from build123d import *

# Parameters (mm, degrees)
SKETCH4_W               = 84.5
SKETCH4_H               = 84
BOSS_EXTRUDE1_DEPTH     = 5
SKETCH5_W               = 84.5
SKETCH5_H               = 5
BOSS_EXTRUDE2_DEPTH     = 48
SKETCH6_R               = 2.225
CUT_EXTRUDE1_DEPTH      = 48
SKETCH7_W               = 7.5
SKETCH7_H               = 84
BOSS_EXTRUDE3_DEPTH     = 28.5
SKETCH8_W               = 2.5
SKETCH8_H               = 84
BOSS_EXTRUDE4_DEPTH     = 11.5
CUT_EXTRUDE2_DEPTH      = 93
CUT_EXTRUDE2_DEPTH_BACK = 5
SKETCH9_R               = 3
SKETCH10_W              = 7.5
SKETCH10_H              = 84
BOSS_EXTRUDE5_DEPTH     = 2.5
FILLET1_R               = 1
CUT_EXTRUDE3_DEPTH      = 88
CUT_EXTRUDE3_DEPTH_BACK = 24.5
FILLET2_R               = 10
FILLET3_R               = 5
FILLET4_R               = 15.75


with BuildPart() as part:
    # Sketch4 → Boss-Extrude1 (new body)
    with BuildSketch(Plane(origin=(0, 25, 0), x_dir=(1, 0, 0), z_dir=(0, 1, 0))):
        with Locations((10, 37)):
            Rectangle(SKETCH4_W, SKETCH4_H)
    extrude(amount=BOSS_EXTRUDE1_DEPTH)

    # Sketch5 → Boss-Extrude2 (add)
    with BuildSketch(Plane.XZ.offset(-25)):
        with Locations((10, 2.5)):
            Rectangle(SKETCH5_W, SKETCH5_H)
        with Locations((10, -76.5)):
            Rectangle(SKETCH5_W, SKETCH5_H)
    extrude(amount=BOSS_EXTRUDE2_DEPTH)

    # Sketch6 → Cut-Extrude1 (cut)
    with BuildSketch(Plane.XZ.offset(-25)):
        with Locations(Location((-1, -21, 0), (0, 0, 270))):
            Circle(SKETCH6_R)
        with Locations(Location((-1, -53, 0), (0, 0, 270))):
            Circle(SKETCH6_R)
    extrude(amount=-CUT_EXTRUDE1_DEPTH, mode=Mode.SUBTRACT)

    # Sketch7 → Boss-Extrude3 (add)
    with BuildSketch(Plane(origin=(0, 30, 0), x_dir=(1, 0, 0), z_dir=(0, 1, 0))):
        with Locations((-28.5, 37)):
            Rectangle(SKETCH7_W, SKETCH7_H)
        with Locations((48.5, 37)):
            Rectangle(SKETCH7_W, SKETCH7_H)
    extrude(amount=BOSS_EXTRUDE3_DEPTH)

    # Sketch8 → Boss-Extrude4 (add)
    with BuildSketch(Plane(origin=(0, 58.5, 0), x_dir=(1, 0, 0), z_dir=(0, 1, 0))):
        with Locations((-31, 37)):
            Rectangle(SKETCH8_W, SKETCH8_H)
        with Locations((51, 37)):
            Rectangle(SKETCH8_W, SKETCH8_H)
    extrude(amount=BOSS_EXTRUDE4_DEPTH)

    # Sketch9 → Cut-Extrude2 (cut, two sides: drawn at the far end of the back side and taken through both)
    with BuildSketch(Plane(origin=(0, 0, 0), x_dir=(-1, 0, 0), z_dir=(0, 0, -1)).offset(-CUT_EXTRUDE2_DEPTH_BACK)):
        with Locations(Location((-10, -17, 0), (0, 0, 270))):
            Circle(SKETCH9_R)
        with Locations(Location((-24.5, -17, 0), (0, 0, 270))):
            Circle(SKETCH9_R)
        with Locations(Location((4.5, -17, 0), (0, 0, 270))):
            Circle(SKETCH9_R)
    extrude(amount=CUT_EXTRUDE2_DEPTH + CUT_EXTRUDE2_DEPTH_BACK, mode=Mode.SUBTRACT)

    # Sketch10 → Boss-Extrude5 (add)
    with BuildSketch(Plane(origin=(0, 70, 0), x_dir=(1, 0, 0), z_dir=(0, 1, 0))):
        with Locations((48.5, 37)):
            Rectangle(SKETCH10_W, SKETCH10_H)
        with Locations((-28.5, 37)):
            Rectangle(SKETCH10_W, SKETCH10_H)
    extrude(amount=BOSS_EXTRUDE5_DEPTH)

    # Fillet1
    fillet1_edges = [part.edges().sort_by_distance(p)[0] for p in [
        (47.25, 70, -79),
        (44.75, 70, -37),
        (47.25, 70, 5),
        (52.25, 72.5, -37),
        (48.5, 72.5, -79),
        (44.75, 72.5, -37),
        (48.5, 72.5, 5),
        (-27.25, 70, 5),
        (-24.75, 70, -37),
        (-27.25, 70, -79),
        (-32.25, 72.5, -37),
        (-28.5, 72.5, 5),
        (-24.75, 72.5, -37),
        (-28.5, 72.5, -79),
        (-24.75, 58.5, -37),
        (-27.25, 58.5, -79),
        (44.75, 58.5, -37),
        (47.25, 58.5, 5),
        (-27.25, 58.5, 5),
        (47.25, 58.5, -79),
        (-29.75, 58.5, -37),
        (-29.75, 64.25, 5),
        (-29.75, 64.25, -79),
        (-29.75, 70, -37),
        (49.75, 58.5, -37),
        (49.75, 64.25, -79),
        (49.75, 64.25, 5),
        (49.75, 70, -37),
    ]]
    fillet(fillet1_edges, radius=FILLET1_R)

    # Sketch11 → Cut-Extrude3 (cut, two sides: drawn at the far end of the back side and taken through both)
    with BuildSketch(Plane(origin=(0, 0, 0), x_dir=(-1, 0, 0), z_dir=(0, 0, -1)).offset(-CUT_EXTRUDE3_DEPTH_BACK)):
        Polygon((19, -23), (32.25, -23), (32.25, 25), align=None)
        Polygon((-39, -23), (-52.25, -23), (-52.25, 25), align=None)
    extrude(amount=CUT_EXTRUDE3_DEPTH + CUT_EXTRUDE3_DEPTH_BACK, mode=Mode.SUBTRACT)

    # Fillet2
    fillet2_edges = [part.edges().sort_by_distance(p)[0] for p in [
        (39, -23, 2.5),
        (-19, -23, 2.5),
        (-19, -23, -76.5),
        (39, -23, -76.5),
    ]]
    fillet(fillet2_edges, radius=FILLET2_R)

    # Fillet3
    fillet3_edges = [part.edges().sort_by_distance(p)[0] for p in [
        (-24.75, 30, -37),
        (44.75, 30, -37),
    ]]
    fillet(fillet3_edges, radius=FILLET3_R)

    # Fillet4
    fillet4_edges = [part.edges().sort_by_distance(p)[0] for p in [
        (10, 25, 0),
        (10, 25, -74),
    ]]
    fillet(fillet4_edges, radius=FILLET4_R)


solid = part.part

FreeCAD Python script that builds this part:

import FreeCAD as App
import Part
import Sketcher
from FreeCAD import Vector


def edges_at(feature, points):
    """Names of the edges that pass closest to the given points."""
    edges = feature.Shape.Edges
    near = lambda p: min(range(len(edges)), key=lambda i: edges[i].distToShape(Part.Vertex(*p))[0])
    return sorted({f"Edge{near(p) + 1}" for p in points})


def add_polygon(sketch, points):
    """Adds a closed chain of lines whose ends are joined by coincident constraints."""
    first, n = sketch.GeometryCount, len(points)
    for a, b in zip(points, points[1:] + points[:1]):
        sketch.addGeometry(Part.LineSegment(App.Vector(*a, 0), App.Vector(*b, 0)), False)
    for i in range(n):
        sketch.addConstraint(Sketcher.Constraint("Coincident", first + i, 2, first + (i + 1) % n, 1))

doc = App.newDocument("Part")
body = doc.addObject("PartDesign::Body", "Body")

sketch1 = doc.addObject("Sketcher::SketchObject", "Sketch")
body.addObject(sketch1)
sketch1.AttachmentSupport = (doc.XZ_Plane, [""])
sketch1.MapMode = "FlatFace"
sketch1.AttachmentOffset = App.Placement(Vector(0, 0, -25), App.Rotation())
add_polygon(sketch1, [(-32, -79), (-32, 5), (52, 5), (52, -79)])
sketch1.addConstraint([
    Sketcher.Constraint("Vertical", 0),
    Sketcher.Constraint("Horizontal", 1),
    Sketcher.Constraint("Vertical", 2),
    Sketcher.Constraint("Horizontal", 3),
    Sketcher.Constraint("DistanceY", 0, 1, 0, 2, 84.0),
    Sketcher.Constraint("DistanceX", 1, 1, 1, 2, 84.5),
    Sketcher.Constraint("DistanceY", -1, 1, 0, 2, 5.0),
    Sketcher.Constraint("DistanceX", 0, 2, -1, 1, 32.25),
])
pad1 = doc.addObject("PartDesign::Pad", "Pad")
body.addObject(pad1)
pad1.Profile = sketch1
pad1.Length = 5
pad1.Reversed = True

sketch2 = doc.addObject("Sketcher::SketchObject", "Sketch001")
body.addObject(sketch2)
sketch2.AttachmentSupport = (doc.XZ_Plane, [""])
sketch2.MapMode = "FlatFace"
sketch2.AttachmentOffset = App.Placement(Vector(0, 0, -25), App.Rotation())
add_polygon(sketch2, [(-32, 5), (-32, 0), (52, 0), (52, 5)])
add_polygon(sketch2, [(-32, -74), (-32, -79), (52, -79), (52, -74)])
sketch2.addConstraint([
    Sketcher.Constraint("Vertical", 0),
    Sketcher.Constraint("Horizontal", 1),
    Sketcher.Constraint("Vertical", 2),
    Sketcher.Constraint("Horizontal", 3),
    Sketcher.Constraint("Vertical", 4),
    Sketcher.Constraint("Horizontal", 5),
    Sketcher.Constraint("Vertical", 6),
    Sketcher.Constraint("Horizontal", 7),
    Sketcher.Constraint("PointOnObject", 0, 2, -1),
    Sketcher.Constraint("Vertical", 3, 2, 4, 2),
    Sketcher.Constraint("Vertical", 2, 2, 5, 2),
    Sketcher.Constraint("Equal", 2, 4),
    Sketcher.Constraint("DistanceY", 0, 2, 0, 1, 5.0),
    Sketcher.Constraint("DistanceX", 1, 1, 1, 2, 84.5),
    Sketcher.Constraint("DistanceY", 4, 2, -1, 1, 79.0),
    Sketcher.Constraint("DistanceX", 0, 2, -1, 1, 32.25),
])
pad2 = doc.addObject("PartDesign::Pad", "Pad001")
body.addObject(pad2)
pad2.Profile = sketch2
pad2.Length = 48

sketch3 = doc.addObject("Sketcher::SketchObject", "Sketch002")
body.addObject(sketch3)
sketch3.AttachmentSupport = (doc.XZ_Plane, [""])
sketch3.MapMode = "FlatFace"
sketch3.AttachmentOffset = App.Placement(Vector(0, 0, -25), App.Rotation())
sketch3.addGeometry([
    Part.Circle(Vector(-1, -21, 0), Vector(0, 0, 1), 2.2),
    Part.Circle(Vector(-1, -53, 0), Vector(0, 0, 1), 2.2),
], False)
sketch3.addConstraint([
    Sketcher.Constraint("Equal", 0, 1),
    Sketcher.Constraint("Vertical", 0, 3, 1, 3),
    Sketcher.Constraint("Diameter", 0, 4.45),
    Sketcher.Constraint("DistanceX", 0, 3, -1, 1, 1.0),
    Sketcher.Constraint("DistanceY", 0, 3, -1, 1, 21.0),
    Sketcher.Constraint("DistanceY", 1, 3, -1, 1, 53.0),
])
pocket1 = doc.addObject("PartDesign::Pocket", "Pocket")
body.addObject(pocket1)
pocket1.Profile = sketch3
pocket1.Length = 48

sketch4 = doc.addObject("Sketcher::SketchObject", "Sketch003")
body.addObject(sketch4)
sketch4.AttachmentSupport = (doc.XZ_Plane, [""])
sketch4.MapMode = "FlatFace"
sketch4.AttachmentOffset = App.Placement(Vector(0, 0, -30), App.Rotation())
add_polygon(sketch4, [(-32, -79), (-32, 5), (-25, 5), (-25, -79)])
add_polygon(sketch4, [(45, -79), (45, 5), (52, 5), (52, -79)])
sketch4.addConstraint([
    Sketcher.Constraint("Vertical", 0),
    Sketcher.Constraint("Horizontal", 1),
    Sketcher.Constraint("Vertical", 2),
    Sketcher.Constraint("Horizontal", 3),
    Sketcher.Constraint("Vertical", 4),
    Sketcher.Constraint("Horizontal", 5),
    Sketcher.Constraint("Vertical", 6),
    Sketcher.Constraint("Horizontal", 7),
    Sketcher.Constraint("Horizontal", 1, 2, 4, 2),
    Sketcher.Constraint("Horizontal", 3, 2, 6, 2),
    Sketcher.Constraint("Equal", 3, 5),
    Sketcher.Constraint("DistanceY", 0, 1, 0, 2, 84.0),
    Sketcher.Constraint("DistanceX", 1, 1, 1, 2, 7.5),
    Sketcher.Constraint("DistanceY", -1, 1, 0, 2, 5.0),
    Sketcher.Constraint("DistanceX", 0, 2, 4, 2, 77.0),
    Sketcher.Constraint("DistanceX", 0, 2, -1, 1, 32.25),
])
pad3 = doc.addObject("PartDesign::Pad", "Pad002")
body.addObject(pad3)
pad3.Profile = sketch4
pad3.Length = 28.5
pad3.Reversed = True

sketch5 = doc.addObject("Sketcher::SketchObject", "Sketch004")
body.addObject(sketch5)
sketch5.AttachmentSupport = (doc.XZ_Plane, [""])
sketch5.MapMode = "FlatFace"
sketch5.AttachmentOffset = App.Placement(Vector(0, 0, -58.5), App.Rotation())
add_polygon(sketch5, [(-32.2, -79), (-32.2, 5), (-29.8, 5), (-29.8, -79)])
add_polygon(sketch5, [(49.8, -79), (49.8, 5), (52.2, 5), (52.2, -79)])
sketch5.addConstraint([
    Sketcher.Constraint("Vertical", 0),
    Sketcher.Constraint("Horizontal", 1),
    Sketcher.Constraint("Vertical", 2),
    Sketcher.Constraint("Horizontal", 3),
    Sketcher.Constraint("Vertical", 4),
    Sketcher.Constraint("Horizontal", 5),
    Sketcher.Constraint("Vertical", 6),
    Sketcher.Constraint("Horizontal", 7),
    Sketcher.Constraint("Horizontal", 1, 2, 4, 2),
    Sketcher.Constraint("Horizontal", 3, 2, 6, 2),
    Sketcher.Constraint("Equal", 3, 5),
    Sketcher.Constraint("DistanceY", 0, 1, 0, 2, 84.0),
    Sketcher.Constraint("DistanceX", 1, 1, 1, 2, 2.5),
    Sketcher.Constraint("DistanceY", -1, 1, 0, 2, 5.0),
    Sketcher.Constraint("DistanceX", 0, 2, 4, 2, 82.0),
    Sketcher.Constraint("DistanceX", 0, 2, -1, 1, 32.25),
])
pad4 = doc.addObject("PartDesign::Pad", "Pad003")
body.addObject(pad4)
pad4.Profile = sketch5
pad4.Length = 11.5
pad4.Reversed = True

sketch6 = doc.addObject("Sketcher::SketchObject", "Sketch005")
body.addObject(sketch6)
sketch6.AttachmentSupport = (doc.XY_Plane, [""])
sketch6.MapMode = "FlatFace"
sketch6.addGeometry([
    Part.Circle(Vector(10, -17, 0), Vector(0, 0, 1), 3),
    Part.Circle(Vector(24.5, -17, 0), Vector(0, 0, 1), 3),
    Part.Circle(Vector(-4.5, -17, 0), Vector(0, 0, 1), 3),
], False)
sketch6.addConstraint([
    Sketcher.Constraint("Equal", 0, 1),
    Sketcher.Constraint("Equal", 1, 2),
    Sketcher.Constraint("Horizontal", 0, 3, 1, 3),
    Sketcher.Constraint("Horizontal", 1, 3, 2, 3),
    Sketcher.Constraint("Diameter", 0, 6.0),
    Sketcher.Constraint("DistanceX", -1, 1, 0, 3, 10.0),
    Sketcher.Constraint("DistanceY", 0, 3, -1, 1, 17.0),
    Sketcher.Constraint("DistanceX", 2, 3, 1, 3, 29.0),
    Sketcher.Constraint("DistanceX", -1, 1, 1, 3, 24.5),
])
pocket2 = doc.addObject("PartDesign::Pocket", "Pocket001")
body.addObject(pocket2)
pocket2.Profile = sketch6
pocket2.Type = "ThroughAll"
pocket2.Midplane = True

sketch7 = doc.addObject("Sketcher::SketchObject", "Sketch006")
body.addObject(sketch7)
sketch7.AttachmentSupport = (doc.XZ_Plane, [""])
sketch7.MapMode = "FlatFace"
sketch7.AttachmentOffset = App.Placement(Vector(0, 0, -70), App.Rotation())
add_polygon(sketch7, [(45, -79), (45, 5), (52, 5), (52, -79)])
add_polygon(sketch7, [(-32, -79), (-32, 5), (-25, 5), (-25, -79)])
sketch7.addConstraint([
    Sketcher.Constraint("Vertical", 0),
    Sketcher.Constraint("Horizontal", 1),
    Sketcher.Constraint("Vertical", 2),
    Sketcher.Constraint("Horizontal", 3),
    Sketcher.Constraint("Vertical", 4),
    Sketcher.Constraint("Horizontal", 5),
    Sketcher.Constraint("Vertical", 6),
    Sketcher.Constraint("Horizontal", 7),
    Sketcher.Constraint("Horizontal", 1, 2, 4, 2),
    Sketcher.Constraint("Horizontal", 3, 2, 6, 2),
    Sketcher.Constraint("Equal", 3, 5),
    Sketcher.Constraint("DistanceY", 0, 1, 0, 2, 84.0),
    Sketcher.Constraint("DistanceX", 1, 1, 1, 2, 7.5),
    Sketcher.Constraint("DistanceY", -1, 1, 0, 2, 5.0),
    Sketcher.Constraint("DistanceX", 4, 2, 0, 2, 77.0),
    Sketcher.Constraint("DistanceX", -1, 1, 0, 2, 44.75),
])
pad5 = doc.addObject("PartDesign::Pad", "Pad004")
body.addObject(pad5)
pad5.Profile = sketch7
pad5.Length = 2.5
pad5.Reversed = True
doc.recompute()

fillet = doc.addObject("PartDesign::Fillet", "Fillet")
body.addObject(fillet)
fillet.Base = (pad5, edges_at(pad5, [
    (47.25, 70, -79),
    (44.75, 70, -37),
    (47.25, 70, 5),
    (52.25, 72.5, -37),
    (48.5, 72.5, -79),
    (44.75, 72.5, -37),
    (48.5, 72.5, 5),
    (-27.25, 70, 5),
    (-24.75, 70, -37),
    (-27.25, 70, -79),
    (-32.25, 72.5, -37),
    (-28.5, 72.5, 5),
    (-24.75, 72.5, -37),
    (-28.5, 72.5, -79),
    (-24.75, 58.5, -37),
    (-27.25, 58.5, -79),
    (44.75, 58.5, -37),
    (47.25, 58.5, 5),
    (-27.25, 58.5, 5),
    (47.25, 58.5, -79),
    (-29.75, 58.5, -37),
    (-29.75, 64.25, 5),
    (-29.75, 64.25, -79),
    (-29.75, 70, -37),
    (49.75, 58.5, -37),
    (49.75, 64.25, -79),
    (49.75, 64.25, 5),
    (49.75, 70, -37),
]))
fillet.Radius = 1

sketch8 = doc.addObject("Sketcher::SketchObject", "Sketch007")
body.addObject(sketch8)
sketch8.AttachmentSupport = (doc.XY_Plane, [""])
sketch8.MapMode = "FlatFace"
add_polygon(sketch8, [(-19, -23), (-32, -23), (-32, 25)])
add_polygon(sketch8, [(52, -23), (39, -23), (52, 25)])
sketch8.addConstraint([
    Sketcher.Constraint("Horizontal", 0),
    Sketcher.Constraint("Vertical", 1),
    Sketcher.Constraint("Horizontal", 3),
    Sketcher.Constraint("Vertical", 5),
    Sketcher.Constraint("Horizontal", 2, 2, 3, 2),
    Sketcher.Constraint("Horizontal", 1, 2, 4, 2),
    Sketcher.Constraint("Equal", 0, 3),
    Sketcher.Constraint("DistanceY", 1, 1, 1, 2, 48.0),
    Sketcher.Constraint("DistanceY", 0, 2, -1, 1, 23.0),
    Sketcher.Constraint("DistanceX", 2, 2, -1, 1, 19.0),
    Sketcher.Constraint("DistanceX", -1, 1, 3, 2, 39.0),
    Sketcher.Constraint("DistanceX", 0, 2, 0, 1, 13.25),
])
pocket3 = doc.addObject("PartDesign::Pocket", "Pocket002")
body.addObject(pocket3)
pocket3.Profile = sketch8
pocket3.Type = "ThroughAll"
pocket3.Midplane = True
doc.recompute()

fillet2 = doc.addObject("PartDesign::Fillet", "Fillet001")
body.addObject(fillet2)
fillet2.Base = (pocket3, edges_at(pocket3, [
    (39, -23, 2.5),
    (-19, -23, 2.5),
    (-19, -23, -76.5),
    (39, -23, -76.5),
]))
fillet2.Radius = 10
doc.recompute()

fillet3 = doc.addObject("PartDesign::Fillet", "Fillet002")
body.addObject(fillet3)
fillet3.Base = (fillet2, edges_at(fillet2, [(-24.75, 30, -37), (44.75, 30, -37)]))
fillet3.Radius = 5
doc.recompute()

fillet4 = doc.addObject("PartDesign::Fillet", "Fillet003")
body.addObject(fillet4)
fillet4.Base = (fillet3, edges_at(fillet3, [(10, 25, 0), (10, 25, -74)]))
fillet4.Radius = 15.75

doc.recompute()
